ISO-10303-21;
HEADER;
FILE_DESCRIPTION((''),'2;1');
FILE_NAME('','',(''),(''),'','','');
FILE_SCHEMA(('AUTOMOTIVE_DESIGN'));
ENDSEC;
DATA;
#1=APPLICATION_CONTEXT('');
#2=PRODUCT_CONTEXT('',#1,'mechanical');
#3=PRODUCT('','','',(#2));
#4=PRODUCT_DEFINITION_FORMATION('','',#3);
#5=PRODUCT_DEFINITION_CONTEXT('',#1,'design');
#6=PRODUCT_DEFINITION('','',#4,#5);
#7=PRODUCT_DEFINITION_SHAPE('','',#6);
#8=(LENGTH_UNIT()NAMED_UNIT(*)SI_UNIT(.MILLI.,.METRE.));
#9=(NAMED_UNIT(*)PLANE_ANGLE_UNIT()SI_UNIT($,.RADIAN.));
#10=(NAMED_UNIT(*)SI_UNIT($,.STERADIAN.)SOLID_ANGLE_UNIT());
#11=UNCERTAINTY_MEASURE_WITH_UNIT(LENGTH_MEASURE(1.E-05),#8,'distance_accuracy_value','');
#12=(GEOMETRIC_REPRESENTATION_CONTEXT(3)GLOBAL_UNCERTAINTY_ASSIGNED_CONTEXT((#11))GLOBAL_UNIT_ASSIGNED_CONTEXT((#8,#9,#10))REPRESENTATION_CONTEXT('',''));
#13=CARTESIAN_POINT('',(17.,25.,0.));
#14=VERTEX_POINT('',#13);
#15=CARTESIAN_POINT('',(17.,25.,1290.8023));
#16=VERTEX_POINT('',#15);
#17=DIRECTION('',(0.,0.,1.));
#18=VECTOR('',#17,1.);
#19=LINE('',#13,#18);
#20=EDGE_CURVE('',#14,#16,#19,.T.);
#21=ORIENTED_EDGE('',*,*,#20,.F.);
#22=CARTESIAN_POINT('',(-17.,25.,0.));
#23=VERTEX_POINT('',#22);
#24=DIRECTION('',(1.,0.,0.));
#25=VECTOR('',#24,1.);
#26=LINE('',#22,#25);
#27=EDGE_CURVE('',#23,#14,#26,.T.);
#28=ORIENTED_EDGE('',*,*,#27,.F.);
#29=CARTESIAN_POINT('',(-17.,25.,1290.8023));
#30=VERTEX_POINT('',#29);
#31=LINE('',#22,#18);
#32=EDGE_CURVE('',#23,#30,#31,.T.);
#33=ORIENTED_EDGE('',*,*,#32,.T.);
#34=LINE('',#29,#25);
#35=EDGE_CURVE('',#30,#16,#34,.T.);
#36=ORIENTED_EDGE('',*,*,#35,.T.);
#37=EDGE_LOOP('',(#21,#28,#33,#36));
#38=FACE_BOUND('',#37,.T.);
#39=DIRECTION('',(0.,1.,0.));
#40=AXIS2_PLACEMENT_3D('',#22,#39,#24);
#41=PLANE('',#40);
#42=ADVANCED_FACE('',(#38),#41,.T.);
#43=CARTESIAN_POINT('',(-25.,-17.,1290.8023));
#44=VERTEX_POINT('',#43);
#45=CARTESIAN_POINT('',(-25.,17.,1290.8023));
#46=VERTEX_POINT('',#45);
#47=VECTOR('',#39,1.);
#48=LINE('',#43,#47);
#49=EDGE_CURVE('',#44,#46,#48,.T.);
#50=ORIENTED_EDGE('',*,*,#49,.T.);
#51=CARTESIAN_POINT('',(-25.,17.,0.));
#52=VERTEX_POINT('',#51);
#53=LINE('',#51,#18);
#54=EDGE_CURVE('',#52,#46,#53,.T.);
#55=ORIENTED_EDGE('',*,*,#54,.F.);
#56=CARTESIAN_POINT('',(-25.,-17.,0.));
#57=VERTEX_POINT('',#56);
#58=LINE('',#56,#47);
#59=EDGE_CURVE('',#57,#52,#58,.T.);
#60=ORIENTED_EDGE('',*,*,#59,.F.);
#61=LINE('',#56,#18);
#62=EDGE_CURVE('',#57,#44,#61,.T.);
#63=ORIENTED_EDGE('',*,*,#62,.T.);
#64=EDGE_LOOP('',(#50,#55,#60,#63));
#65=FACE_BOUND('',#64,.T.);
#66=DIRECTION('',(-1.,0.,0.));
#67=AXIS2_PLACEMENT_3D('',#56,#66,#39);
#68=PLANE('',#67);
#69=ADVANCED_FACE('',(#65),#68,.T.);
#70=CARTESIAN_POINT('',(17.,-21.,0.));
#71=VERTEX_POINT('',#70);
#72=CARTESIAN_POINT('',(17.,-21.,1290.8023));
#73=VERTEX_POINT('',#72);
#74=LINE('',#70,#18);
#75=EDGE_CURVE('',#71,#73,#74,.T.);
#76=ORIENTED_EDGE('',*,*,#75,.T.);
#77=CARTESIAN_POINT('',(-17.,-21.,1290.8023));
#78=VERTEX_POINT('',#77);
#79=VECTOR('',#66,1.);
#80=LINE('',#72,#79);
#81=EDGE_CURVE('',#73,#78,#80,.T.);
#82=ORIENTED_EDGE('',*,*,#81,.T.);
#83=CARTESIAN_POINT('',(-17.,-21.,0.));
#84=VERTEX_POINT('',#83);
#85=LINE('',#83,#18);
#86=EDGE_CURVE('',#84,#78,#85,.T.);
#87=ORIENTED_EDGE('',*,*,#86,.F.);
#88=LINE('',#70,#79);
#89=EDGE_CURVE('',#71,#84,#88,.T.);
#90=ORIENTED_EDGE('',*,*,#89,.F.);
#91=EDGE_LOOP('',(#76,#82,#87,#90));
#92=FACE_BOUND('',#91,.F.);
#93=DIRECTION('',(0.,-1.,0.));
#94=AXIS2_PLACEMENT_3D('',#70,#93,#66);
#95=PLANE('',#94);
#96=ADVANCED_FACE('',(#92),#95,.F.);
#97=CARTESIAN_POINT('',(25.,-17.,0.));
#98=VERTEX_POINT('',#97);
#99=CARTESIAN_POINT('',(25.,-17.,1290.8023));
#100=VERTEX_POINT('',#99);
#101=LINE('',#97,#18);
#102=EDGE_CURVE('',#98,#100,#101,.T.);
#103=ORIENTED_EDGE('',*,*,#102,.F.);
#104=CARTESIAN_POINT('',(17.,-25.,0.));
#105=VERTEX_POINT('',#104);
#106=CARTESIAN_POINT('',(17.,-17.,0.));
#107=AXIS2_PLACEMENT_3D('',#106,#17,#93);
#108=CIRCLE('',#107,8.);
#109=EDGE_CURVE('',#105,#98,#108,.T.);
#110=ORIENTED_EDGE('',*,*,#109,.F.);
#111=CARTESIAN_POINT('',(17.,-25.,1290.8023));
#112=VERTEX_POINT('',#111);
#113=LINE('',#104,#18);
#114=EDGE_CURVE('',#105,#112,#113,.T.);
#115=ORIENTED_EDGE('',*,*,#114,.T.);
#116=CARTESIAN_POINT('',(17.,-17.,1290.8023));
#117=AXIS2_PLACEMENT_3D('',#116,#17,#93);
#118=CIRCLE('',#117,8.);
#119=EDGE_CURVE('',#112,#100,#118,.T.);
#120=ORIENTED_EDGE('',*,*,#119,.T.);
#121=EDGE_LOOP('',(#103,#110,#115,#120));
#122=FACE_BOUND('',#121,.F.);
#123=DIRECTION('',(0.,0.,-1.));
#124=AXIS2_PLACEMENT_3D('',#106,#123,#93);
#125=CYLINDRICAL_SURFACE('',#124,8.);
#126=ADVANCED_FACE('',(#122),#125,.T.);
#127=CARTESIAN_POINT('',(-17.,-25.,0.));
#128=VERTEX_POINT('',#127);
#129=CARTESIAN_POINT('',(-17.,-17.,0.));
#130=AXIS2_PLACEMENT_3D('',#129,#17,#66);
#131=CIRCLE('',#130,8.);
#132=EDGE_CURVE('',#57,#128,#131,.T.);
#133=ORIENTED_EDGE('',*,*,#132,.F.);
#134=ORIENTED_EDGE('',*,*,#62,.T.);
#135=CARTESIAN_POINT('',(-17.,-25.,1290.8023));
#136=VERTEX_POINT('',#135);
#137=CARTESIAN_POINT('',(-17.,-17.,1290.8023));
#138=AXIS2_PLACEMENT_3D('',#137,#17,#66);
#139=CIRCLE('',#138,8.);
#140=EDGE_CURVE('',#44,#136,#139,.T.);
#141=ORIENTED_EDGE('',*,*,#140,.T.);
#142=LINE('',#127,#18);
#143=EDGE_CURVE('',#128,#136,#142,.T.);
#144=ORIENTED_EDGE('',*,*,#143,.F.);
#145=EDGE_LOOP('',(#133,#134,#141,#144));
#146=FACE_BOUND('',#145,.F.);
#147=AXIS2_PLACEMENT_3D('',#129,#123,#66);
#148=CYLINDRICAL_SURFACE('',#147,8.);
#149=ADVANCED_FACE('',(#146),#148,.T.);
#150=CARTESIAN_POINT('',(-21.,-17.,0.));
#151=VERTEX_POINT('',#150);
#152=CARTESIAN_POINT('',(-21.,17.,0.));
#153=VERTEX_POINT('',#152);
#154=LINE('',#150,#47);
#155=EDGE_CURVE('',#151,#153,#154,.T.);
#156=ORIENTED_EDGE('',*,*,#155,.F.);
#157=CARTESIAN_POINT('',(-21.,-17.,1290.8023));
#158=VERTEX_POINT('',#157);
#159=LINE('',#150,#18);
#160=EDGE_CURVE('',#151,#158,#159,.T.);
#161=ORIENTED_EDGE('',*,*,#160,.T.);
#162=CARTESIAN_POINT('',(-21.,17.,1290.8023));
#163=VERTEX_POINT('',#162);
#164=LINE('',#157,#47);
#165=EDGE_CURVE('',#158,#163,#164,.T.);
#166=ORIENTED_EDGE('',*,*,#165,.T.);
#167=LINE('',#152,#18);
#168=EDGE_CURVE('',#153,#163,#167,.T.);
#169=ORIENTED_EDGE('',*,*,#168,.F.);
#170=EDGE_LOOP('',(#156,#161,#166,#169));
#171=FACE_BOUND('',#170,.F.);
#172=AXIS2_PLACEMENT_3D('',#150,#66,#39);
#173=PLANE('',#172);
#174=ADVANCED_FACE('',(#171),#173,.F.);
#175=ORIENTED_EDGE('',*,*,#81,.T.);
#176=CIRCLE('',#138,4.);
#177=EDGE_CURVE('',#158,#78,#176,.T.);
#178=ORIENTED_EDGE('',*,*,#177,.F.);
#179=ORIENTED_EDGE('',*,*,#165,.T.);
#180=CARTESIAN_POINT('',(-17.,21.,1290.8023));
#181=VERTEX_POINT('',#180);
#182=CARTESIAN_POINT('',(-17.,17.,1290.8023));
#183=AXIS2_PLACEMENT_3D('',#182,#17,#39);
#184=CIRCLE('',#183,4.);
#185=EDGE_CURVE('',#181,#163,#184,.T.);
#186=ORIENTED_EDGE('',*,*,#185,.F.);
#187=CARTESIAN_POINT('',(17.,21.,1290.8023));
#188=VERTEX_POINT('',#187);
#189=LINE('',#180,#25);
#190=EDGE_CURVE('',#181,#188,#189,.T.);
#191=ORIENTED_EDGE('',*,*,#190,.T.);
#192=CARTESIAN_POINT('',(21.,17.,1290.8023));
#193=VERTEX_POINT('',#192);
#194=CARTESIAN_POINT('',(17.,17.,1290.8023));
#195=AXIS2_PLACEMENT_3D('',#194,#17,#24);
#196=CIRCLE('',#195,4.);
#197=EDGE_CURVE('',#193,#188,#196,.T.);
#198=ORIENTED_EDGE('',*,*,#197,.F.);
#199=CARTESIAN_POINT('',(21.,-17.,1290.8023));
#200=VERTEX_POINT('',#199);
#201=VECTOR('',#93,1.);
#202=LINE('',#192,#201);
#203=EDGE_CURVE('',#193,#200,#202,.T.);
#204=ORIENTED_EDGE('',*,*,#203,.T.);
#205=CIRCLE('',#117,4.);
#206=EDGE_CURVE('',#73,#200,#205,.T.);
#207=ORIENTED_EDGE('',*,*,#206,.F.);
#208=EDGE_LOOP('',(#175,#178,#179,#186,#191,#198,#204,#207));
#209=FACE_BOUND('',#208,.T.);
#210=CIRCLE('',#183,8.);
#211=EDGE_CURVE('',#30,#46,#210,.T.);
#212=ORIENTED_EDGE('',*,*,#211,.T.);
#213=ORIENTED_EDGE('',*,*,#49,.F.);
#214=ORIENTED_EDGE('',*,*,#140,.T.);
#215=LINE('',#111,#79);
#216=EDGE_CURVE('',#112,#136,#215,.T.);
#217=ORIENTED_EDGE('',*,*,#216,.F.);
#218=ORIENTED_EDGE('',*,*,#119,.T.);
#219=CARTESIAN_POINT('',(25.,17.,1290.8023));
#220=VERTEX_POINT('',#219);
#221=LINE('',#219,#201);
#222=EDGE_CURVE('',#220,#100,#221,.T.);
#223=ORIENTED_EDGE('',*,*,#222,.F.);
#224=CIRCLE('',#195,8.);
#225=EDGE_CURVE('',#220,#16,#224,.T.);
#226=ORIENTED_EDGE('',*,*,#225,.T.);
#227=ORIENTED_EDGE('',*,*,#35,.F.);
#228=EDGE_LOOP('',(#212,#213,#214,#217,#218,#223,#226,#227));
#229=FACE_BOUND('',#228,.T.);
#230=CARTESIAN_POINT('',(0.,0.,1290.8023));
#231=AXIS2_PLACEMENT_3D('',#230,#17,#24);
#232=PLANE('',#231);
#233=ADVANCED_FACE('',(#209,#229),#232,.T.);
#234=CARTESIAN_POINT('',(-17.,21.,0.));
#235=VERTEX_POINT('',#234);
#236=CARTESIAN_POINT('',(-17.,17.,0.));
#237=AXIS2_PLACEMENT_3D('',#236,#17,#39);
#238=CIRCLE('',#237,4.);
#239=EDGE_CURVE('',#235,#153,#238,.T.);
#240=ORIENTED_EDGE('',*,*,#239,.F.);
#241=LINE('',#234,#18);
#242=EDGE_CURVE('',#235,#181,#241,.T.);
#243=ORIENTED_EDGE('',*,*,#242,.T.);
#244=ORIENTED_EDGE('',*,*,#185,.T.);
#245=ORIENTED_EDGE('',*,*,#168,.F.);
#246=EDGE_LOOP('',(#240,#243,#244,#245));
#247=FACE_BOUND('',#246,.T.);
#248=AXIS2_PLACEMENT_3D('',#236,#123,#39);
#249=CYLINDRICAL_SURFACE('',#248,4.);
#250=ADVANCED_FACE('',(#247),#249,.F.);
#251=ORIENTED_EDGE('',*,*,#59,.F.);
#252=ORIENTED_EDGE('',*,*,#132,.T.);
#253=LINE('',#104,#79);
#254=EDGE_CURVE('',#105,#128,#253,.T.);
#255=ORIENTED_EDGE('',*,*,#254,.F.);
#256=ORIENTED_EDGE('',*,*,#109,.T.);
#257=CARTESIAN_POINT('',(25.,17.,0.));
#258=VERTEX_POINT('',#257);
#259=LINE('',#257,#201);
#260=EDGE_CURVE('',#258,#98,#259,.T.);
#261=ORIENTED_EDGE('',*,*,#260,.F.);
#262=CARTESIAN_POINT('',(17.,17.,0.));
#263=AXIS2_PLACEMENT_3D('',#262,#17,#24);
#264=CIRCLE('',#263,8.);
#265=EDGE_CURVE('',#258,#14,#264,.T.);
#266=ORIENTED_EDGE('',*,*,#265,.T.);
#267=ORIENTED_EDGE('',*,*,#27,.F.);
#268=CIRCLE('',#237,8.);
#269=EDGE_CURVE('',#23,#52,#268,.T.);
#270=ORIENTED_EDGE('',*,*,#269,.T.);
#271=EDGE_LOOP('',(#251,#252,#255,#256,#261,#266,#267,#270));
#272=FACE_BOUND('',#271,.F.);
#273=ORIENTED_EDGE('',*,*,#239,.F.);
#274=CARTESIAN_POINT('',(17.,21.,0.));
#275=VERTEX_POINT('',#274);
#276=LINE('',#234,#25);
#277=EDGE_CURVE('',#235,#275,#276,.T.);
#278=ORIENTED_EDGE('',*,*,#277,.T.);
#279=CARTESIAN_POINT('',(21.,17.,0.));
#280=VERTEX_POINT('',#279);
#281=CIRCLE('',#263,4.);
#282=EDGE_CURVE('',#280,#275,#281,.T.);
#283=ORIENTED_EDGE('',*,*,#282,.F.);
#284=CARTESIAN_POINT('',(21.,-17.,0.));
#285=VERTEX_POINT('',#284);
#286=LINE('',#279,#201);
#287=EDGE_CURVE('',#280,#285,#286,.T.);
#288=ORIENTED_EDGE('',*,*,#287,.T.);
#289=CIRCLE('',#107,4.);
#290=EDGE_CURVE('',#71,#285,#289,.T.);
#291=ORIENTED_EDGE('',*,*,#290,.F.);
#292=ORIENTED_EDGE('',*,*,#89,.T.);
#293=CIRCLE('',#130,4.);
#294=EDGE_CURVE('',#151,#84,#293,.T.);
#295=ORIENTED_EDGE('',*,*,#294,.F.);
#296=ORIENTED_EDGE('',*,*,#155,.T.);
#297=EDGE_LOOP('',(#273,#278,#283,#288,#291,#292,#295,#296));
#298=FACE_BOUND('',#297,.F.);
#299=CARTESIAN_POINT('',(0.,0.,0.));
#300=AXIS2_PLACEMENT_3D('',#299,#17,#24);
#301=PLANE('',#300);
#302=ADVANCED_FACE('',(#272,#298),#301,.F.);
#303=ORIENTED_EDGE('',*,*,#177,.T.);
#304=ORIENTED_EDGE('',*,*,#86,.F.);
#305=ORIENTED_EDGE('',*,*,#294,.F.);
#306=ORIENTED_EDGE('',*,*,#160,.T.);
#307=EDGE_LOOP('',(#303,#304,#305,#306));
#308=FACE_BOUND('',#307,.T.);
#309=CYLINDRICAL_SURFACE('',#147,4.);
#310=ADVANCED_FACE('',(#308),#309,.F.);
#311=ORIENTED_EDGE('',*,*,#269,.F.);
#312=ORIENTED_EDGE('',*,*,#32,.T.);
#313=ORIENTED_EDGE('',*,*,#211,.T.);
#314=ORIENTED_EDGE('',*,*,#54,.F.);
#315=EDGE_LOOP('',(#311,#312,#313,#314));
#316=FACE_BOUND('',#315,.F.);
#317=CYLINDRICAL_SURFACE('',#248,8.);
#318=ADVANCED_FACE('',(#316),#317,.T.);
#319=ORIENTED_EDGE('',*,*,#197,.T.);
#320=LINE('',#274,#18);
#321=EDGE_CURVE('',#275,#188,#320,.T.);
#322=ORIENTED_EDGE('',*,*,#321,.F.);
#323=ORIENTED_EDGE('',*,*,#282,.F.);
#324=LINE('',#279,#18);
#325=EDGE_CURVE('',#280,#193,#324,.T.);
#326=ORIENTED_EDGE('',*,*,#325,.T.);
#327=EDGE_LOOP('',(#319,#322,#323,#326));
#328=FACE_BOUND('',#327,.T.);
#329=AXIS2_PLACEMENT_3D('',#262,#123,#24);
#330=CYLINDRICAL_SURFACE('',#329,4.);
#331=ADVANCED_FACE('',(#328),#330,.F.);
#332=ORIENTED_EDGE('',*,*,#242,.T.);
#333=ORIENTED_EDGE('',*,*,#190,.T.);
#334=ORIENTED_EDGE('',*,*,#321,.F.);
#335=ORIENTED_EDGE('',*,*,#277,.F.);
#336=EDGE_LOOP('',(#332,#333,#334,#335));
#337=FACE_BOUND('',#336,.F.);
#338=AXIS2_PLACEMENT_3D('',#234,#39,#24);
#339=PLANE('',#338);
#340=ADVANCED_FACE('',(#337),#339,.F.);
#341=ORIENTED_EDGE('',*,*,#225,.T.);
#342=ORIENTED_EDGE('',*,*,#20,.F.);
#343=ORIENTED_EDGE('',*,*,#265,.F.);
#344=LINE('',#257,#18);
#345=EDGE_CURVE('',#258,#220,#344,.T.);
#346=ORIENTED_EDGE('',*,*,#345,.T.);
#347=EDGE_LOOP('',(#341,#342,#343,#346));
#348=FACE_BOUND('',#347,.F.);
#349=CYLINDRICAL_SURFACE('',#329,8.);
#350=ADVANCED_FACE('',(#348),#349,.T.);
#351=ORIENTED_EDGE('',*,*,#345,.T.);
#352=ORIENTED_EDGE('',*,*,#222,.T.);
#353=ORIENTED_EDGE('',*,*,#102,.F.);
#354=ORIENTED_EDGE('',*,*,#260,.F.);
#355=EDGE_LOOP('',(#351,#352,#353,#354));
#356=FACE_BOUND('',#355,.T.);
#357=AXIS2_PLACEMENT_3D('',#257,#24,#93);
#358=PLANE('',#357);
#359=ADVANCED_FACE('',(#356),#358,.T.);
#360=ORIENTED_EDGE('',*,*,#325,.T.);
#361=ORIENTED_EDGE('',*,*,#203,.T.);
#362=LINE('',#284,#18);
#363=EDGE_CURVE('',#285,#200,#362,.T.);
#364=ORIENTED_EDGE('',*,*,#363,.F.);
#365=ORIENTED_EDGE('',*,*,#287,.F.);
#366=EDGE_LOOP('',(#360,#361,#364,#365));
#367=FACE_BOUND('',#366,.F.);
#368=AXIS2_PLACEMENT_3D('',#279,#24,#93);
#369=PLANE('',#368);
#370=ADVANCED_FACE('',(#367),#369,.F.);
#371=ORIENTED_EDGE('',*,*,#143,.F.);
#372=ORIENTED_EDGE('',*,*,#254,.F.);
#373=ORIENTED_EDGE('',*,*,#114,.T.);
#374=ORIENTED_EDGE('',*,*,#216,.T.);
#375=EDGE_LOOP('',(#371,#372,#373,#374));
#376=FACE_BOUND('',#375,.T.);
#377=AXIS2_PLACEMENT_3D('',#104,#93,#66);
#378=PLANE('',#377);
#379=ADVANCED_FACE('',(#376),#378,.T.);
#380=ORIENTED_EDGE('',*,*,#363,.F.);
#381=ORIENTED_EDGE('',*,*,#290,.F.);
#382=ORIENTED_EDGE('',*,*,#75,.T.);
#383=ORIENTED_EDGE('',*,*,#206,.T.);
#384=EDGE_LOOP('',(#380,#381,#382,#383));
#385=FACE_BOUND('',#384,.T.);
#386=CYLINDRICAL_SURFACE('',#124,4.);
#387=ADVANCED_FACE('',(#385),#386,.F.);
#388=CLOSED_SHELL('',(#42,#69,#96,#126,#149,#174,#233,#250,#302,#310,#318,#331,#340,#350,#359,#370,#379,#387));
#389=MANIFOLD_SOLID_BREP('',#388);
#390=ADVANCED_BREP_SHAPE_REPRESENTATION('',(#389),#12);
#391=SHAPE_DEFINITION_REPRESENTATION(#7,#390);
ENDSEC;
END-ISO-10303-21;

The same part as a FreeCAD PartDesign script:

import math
import FreeCAD as App
import Part
import Sketcher

V = App.Vector

doc = App.newDocument("Part")
body = doc.addObject("PartDesign::Body", "Body")

# Sketch on XY plane
sketch1 = doc.addObject("Sketcher::SketchObject", "Sketch")
body.addObject(sketch1)
sketch1.AttachmentSupport = (doc.XY_Plane, [""])
sketch1.MapMode = "FlatFace"
sketch1.addGeometry([
    Part.LineSegment(V(-25, 17, 0), V(-25, -17, 0)),  # 0
    Part.ArcOfCircle(Part.Circle(V(-17, -17, 0), V(0, 0, 1), 8), math.radians(180), math.radians(270)),  # 1
    Part.LineSegment(V(-17, -25, 0), V(17, -25, 0)),  # 2
    Part.ArcOfCircle(Part.Circle(V(17, -17, 0), V(0, 0, 1), 8), math.radians(-90), math.radians(0)),  # 3
    Part.LineSegment(V(25, -17, 0), V(25, 17, 0)),  # 4
    Part.ArcOfCircle(Part.Circle(V(17, 17, 0), V(0, 0, 1), 8), math.radians(0), math.radians(90)),  # 5
    Part.LineSegment(V(17, 25, 0), V(-17, 25, 0)),  # 6
    Part.ArcOfCircle(Part.Circle(V(-17, 17, 0), V(0, 0, 1), 8), math.radians(90), math.radians(180)),  # 7
    Part.ArcOfCircle(Part.Circle(V(-17, 17, 0), V(0, 0, 1), 4), math.radians(90), math.radians(180)),  # 8
    Part.LineSegment(V(-17, 21, 0), V(17, 21, 0)),  # 9
    Part.ArcOfCircle(Part.Circle(V(17, 17, 0), V(0, 0, 1), 4), math.radians(0), math.radians(90)),  # 10
    Part.LineSegment(V(21, 17, 0), V(21, -17, 0)),  # 11
    Part.ArcOfCircle(Part.Circle(V(17, -17, 0), V(0, 0, 1), 4), math.radians(-90), math.radians(0)),  # 12
    Part.LineSegment(V(17, -21, 0), V(-17, -21, 0)),  # 13
    Part.ArcOfCircle(Part.Circle(V(-17, -17, 0), V(0, 0, 1), 4), math.radians(180), math.radians(270)),  # 14
    Part.LineSegment(V(-21, -17, 0), V(-21, 17, 0)),  # 15
], False)
sketch1.addConstraint([
    Sketcher.Constraint("Tangent", 0, 2, 1, 1),
    Sketcher.Constraint("Tangent", 1, 2, 2, 1),
    Sketcher.Constraint("Tangent", 2, 2, 3, 1),
    Sketcher.Constraint("Tangent", 3, 2, 4, 1),
    Sketcher.Constraint("Tangent", 4, 2, 5, 1),
    Sketcher.Constraint("Tangent", 5, 2, 6, 1),
    Sketcher.Constraint("Tangent", 6, 2, 7, 1),
    Sketcher.Constraint("Tangent", 7, 2, 0, 1),
    Sketcher.Constraint("Tangent", 8, 1, 9, 1),
    Sketcher.Constraint("Tangent", 9, 2, 10, 2),
    Sketcher.Constraint("Tangent", 10, 1, 11, 1),
    Sketcher.Constraint("Tangent", 11, 2, 12, 2),
    Sketcher.Constraint("Tangent", 12, 1, 13, 1),
    Sketcher.Constraint("Tangent", 13, 2, 14, 2),
    Sketcher.Constraint("Tangent", 14, 1, 15, 1),
    Sketcher.Constraint("Tangent", 15, 2, 8, 2),
    Sketcher.Constraint("Vertical", 0),
    Sketcher.Constraint("Horizontal", 2),
    Sketcher.Constraint("Vertical", 4),
    Sketcher.Constraint("Horizontal", 6),
    Sketcher.Constraint("Horizontal", 9),
    Sketcher.Constraint("Vertical", 11),
    Sketcher.Constraint("Horizontal", 13),
    Sketcher.Constraint("Vertical", 15),
    Sketcher.Constraint("Coincident", 8, 3, 7, 3),
    Sketcher.Constraint("Coincident", 10, 3, 5, 3),
    Sketcher.Constraint("Coincident", 12, 3, 3, 3),
    Sketcher.Constraint("Equal", 1, 3),
    Sketcher.Constraint("Equal", 3, 5),
    Sketcher.Constraint("Equal", 5, 7),
    Sketcher.Constraint("Equal", 12, 14),
    Sketcher.Constraint("Symmetric", 1, 3, 5, 3, -1, 1),
    Sketcher.Constraint("Equal", 13, 0),
    Sketcher.Constraint("Radius", 1, 8.0),
    Sketcher.Constraint("Radius", 8, 4.0),
    Sketcher.Constraint("DistanceX", 0, 2, -1, 1, 25.0),
])
pad1 = doc.addObject("PartDesign::Pad", "Pad")
body.addObject(pad1)
pad1.Profile = sketch1
pad1.Length = 1290.8023

doc.recompute()
